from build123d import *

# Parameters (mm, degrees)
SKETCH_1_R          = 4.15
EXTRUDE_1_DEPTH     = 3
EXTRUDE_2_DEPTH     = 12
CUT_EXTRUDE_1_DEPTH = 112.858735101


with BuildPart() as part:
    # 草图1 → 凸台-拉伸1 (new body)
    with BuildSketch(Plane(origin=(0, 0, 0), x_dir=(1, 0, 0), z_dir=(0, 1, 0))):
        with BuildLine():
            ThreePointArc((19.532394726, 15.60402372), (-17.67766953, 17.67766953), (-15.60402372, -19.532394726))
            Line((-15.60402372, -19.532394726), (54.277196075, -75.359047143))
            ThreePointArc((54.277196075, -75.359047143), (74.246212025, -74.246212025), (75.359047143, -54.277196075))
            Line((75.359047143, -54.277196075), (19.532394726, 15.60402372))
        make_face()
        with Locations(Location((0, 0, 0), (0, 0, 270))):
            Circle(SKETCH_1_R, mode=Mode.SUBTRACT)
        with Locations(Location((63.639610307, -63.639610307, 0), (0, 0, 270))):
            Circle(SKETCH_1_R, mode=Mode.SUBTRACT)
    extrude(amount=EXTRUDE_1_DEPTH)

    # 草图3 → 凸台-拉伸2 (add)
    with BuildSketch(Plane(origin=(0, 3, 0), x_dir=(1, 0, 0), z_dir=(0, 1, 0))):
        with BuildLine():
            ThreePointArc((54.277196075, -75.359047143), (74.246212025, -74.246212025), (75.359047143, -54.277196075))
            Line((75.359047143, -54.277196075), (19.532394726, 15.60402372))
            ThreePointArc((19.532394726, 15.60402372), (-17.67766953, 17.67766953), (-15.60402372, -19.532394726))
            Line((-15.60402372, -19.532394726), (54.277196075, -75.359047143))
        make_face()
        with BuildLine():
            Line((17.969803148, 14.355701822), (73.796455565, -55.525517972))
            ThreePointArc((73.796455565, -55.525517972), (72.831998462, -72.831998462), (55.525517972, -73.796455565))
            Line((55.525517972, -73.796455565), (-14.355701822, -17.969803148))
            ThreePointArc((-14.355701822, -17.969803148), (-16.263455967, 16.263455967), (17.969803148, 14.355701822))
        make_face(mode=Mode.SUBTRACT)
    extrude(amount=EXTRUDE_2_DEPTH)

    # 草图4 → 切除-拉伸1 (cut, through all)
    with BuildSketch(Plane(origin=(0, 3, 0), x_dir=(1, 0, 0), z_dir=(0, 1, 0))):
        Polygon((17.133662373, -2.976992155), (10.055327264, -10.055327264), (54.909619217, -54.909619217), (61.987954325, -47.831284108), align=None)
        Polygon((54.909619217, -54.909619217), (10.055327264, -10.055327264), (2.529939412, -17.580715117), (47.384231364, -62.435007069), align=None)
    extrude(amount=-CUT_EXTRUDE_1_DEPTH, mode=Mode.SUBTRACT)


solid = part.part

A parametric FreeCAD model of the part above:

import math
import FreeCAD as App
import Part
import Sketcher

V = App.Vector
Q = App.Units.Quantity

doc = App.newDocument("Part")
params = doc.addObject("Spreadsheet::Sheet", "Params")
for row, (alias, value) in enumerate([
    ("sketch1_radius", "25 mm"),
    ("sketch1_radius2", "15 mm"),
    ("sketch1_diameter", "8.3 mm"),
    ("pad1_length", "3 mm"),
    ("sketch2_radius", "15 mm"),
    ("sketch2_radius2", "25 mm"),
    ("sketch2_radius3", "23 mm"),
    ("pad2_length", "12 mm"),
], start=1):
    params.set(f"A{row}", alias)
    params.set(f"B{row}", "=" + value)
    params.setAlias(f"B{row}", alias)

body = doc.addObject("PartDesign::Body", "Body")

sketch1 = doc.addObject("Sketcher::SketchObject", "Sketch")
body.addObject(sketch1)
sketch1.AttachmentSupport = (doc.XZ_Plane, [""])
sketch1.MapMode = "FlatFace"
sketch1.addGeometry([
    Part.ArcOfCircle(Part.Circle(V(0, 0, 0), V(0, 0, 1), 25), math.radians(128.62063), math.radians(321.37937)),
    Part.LineSegment(V(-15.604024, 19.532395, 0), V(54.277196, 75.359047, 0)),
    Part.ArcOfCircle(Part.Circle(V(63.63961, 63.63961, 0), V(0, 0, 1), 15), math.radians(-38.62063), math.radians(128.62063)),
    Part.LineSegment(V(75.359047, 54.277196, 0), V(19.532395, -15.604024, 0)),
    Part.Circle(V(63.63961, 63.63961, 0), V(0, 0, 1), 4.15),
    Part.Circle(V(0, 0, 0), V(0, 0, 1), 4.15),
], False)
sketch1.addConstraint([
    Sketcher.Constraint("Tangent", 0, 1, 1, 1),
    Sketcher.Constraint("Tangent", 1, 2, 2, 2),
    Sketcher.Constraint("Tangent", 2, 1, 3, 1),
    Sketcher.Constraint("Tangent", 3, 2, 0, 2),
    Sketcher.Constraint("Coincident", 0, 3, -1, 1),
    Sketcher.Constraint("Coincident", 5, 3, -1, 1),
    Sketcher.Constraint("Coincident", 4, 3, 2, 3),
    Sketcher.Constraint("Equal", 4, 5),
    Sketcher.Constraint("Radius", 0, Q("25 mm")),
    Sketcher.Constraint("Radius", 2, Q("15 mm")),
    Sketcher.Constraint("Diameter", 4, Q("8.3 mm")),
    Sketcher.Constraint("Distance", 1, Q("89.442719 mm")),
    Sketcher.Constraint("DistanceX", -1, 1, 2, 3, Q("63.63961 mm")),
])
sketch1.setExpression("Constraints[8]", "Params.sketch1_radius")
sketch1.setExpression("Constraints[9]", "Params.sketch1_radius2")
sketch1.setExpression("Constraints[10]", "Params.sketch1_diameter")
pad1 = doc.addObject("PartDesign::Pad", "Pad")
body.addObject(pad1)
pad1.Profile = sketch1
pad1.setExpression("Length", "Params.pad1_length")
pad1.Reversed = True

sketch2 = doc.addObject("Sketcher::SketchObject", "Sketch001")
body.addObject(sketch2)
sketch2.AttachmentSupport = (doc.XZ_Plane, [""])
sketch2.MapMode = "FlatFace"
sketch2.AttachmentOffset = App.Placement(V(0, 0, -3), App.Rotation())
sketch2.addGeometry([
    Part.ArcOfCircle(Part.Circle(V(63.63961, 63.63961, 0), V(0, 0, 1), 15), math.radians(-38.62063), math.radians(128.62063)),
    Part.LineSegment(V(75.359047, 54.277196, 0), V(19.532395, -15.604024, 0)),
    Part.ArcOfCircle(Part.Circle(V(0, 0, 0), V(0, 0, 1), 25), math.radians(128.62063), math.radians(321.37937)),
    Part.LineSegment(V(-15.604024, 19.532395, 0), V(54.277196, 75.359047, 0)),
    Part.ArcOfCircle(Part.Circle(V(0, 0, 0), V(0, 0, 1), 23), math.radians(128.62063), math.radians(321.37937)),
    Part.LineSegment(V(17.969803, -14.355702, 0), V(73.796456, 55.525518, 0)),
    Part.ArcOfCircle(Part.Circle(V(63.63961, 63.63961, 0), V(0, 0, 1), 13), math.radians(-38.62063), math.radians(128.62063)),
    Part.LineSegment(V(55.525518, 73.796456, 0), V(-14.355702, 17.969803, 0)),
], False)
sketch2.addConstraint([
    Sketcher.Constraint("Tangent", 0, 1, 1, 1),
    Sketcher.Constraint("Tangent", 1, 2, 2, 2),
    Sketcher.Constraint("Tangent", 2, 1, 3, 1),
    Sketcher.Constraint("Tangent", 3, 2, 0, 2),
    Sketcher.Constraint("Tangent", 4, 2, 5, 1),
    Sketcher.Constraint("Tangent", 5, 2, 6, 1),
    Sketcher.Constraint("Tangent", 6, 2, 7, 1),
    Sketcher.Constraint("Tangent", 7, 2, 4, 1),
    Sketcher.Constraint("Coincident", 2, 3, -1, 1),
    Sketcher.Constraint("Coincident", 4, 3, -1, 1),
    Sketcher.Constraint("Coincident", 6, 3, 0, 3),
    Sketcher.Constraint("Parallel", 1, 5),
    Sketcher.Constraint("Radius", 0, Q("15 mm")),
    Sketcher.Constraint("Radius", 2, Q("25 mm")),
    Sketcher.Constraint("Radius", 4, Q("23 mm")),
    Sketcher.Constraint("DistanceY", 4, 2, -1, 1, Q("14.355702 mm")),
    Sketcher.Constraint("DistanceX", 7, 2, -1, 1, Q("14.355702 mm")),
])
sketch2.setExpression("Constraints[12]", "Params.sketch2_radius")
sketch2.setExpression("Constraints[13]", "Params.sketch2_radius2")
sketch2.setExpression("Constraints[14]", "Params.sketch2_radius3")
pad2 = doc.addObject("PartDesign::Pad", "Pad001")
body.addObject(pad2)
pad2.Profile = sketch2
pad2.setExpression("Length", "Params.pad2_length")
pad2.Reversed = True

sketch3 = doc.addObject("Sketcher::SketchObject", "Sketch002")
body.addObject(sketch3)
sketch3.AttachmentSupport = (doc.XZ_Plane, [""])
sketch3.MapMode = "FlatFace"
sketch3.AttachmentOffset = App.Placement(V(0, 0, -3), App.Rotation())
sketch3.addGeometry([
    Part.LineSegment(V(17.133662, 2.976992, 0), V(10.055327, 10.055327, 0)),
    Part.LineSegment(V(10.055327, 10.055327, 0), V(2.529939, 17.580715, 0)),
    Part.LineSegment(V(2.529939, 17.580715, 0), V(47.384231, 62.435007, 0)),
    Part.LineSegment(V(47.384231, 62.435007, 0), V(54.909619, 54.909619, 0)),
    Part.LineSegment(V(54.909619, 54.909619, 0), V(61.987954, 47.831284, 0)),
    Part.LineSegment(V(61.987954, 47.831284, 0), V(17.133662, 2.976992, 0)),
], False)
sketch3.addConstraint([
    Sketcher.Constraint("Coincident", 0, 2, 1, 1),
    Sketcher.Constraint("Coincident", 1, 2, 2, 1),
    Sketcher.Constraint("Coincident", 2, 2, 3, 1),
    Sketcher.Constraint("Coincident", 3, 2, 4, 1),
    Sketcher.Constraint("Coincident", 4, 2, 5, 1),
    Sketcher.Constraint("Coincident", 5, 2, 0, 1),
    Sketcher.Constraint("Parallel", 0, 1),
    Sketcher.Constraint("Perpendicular", 1, 2),
    Sketcher.Constraint("Perpendicular", 2, 3),
    Sketcher.Constraint("Parallel", 3, 4),
    Sketcher.Constraint("Perpendicular", 4, 5),
    Sketcher.Constraint("Equal", 1, 3),
    Sketcher.Constraint("Angle", 0, Q("135 deg")),
    Sketcher.Constraint("Distance", 2, Q("63.433548 mm")),
    Sketcher.Constraint("DistanceX", -1, 1, 1, 2, Q("2.529939 mm")),
    Sketcher.Constraint("DistanceX", -1, 1, 3, 2, Q("54.909619 mm")),
    Sketcher.Constraint("DistanceY", -1, 1, 3, 2, Q("54.909619 mm")),
    Sketcher.Constraint("DistanceY", 1, 2, 4, 2, Q("30.250569 mm")),
])
pocket1 = doc.addObject("PartDesign::Pocket", "Pocket")
body.addObject(pocket1)
pocket1.Profile = sketch3
pocket1.Type = "ThroughAll"
pocket1.Reversed = True

doc.recompute()
